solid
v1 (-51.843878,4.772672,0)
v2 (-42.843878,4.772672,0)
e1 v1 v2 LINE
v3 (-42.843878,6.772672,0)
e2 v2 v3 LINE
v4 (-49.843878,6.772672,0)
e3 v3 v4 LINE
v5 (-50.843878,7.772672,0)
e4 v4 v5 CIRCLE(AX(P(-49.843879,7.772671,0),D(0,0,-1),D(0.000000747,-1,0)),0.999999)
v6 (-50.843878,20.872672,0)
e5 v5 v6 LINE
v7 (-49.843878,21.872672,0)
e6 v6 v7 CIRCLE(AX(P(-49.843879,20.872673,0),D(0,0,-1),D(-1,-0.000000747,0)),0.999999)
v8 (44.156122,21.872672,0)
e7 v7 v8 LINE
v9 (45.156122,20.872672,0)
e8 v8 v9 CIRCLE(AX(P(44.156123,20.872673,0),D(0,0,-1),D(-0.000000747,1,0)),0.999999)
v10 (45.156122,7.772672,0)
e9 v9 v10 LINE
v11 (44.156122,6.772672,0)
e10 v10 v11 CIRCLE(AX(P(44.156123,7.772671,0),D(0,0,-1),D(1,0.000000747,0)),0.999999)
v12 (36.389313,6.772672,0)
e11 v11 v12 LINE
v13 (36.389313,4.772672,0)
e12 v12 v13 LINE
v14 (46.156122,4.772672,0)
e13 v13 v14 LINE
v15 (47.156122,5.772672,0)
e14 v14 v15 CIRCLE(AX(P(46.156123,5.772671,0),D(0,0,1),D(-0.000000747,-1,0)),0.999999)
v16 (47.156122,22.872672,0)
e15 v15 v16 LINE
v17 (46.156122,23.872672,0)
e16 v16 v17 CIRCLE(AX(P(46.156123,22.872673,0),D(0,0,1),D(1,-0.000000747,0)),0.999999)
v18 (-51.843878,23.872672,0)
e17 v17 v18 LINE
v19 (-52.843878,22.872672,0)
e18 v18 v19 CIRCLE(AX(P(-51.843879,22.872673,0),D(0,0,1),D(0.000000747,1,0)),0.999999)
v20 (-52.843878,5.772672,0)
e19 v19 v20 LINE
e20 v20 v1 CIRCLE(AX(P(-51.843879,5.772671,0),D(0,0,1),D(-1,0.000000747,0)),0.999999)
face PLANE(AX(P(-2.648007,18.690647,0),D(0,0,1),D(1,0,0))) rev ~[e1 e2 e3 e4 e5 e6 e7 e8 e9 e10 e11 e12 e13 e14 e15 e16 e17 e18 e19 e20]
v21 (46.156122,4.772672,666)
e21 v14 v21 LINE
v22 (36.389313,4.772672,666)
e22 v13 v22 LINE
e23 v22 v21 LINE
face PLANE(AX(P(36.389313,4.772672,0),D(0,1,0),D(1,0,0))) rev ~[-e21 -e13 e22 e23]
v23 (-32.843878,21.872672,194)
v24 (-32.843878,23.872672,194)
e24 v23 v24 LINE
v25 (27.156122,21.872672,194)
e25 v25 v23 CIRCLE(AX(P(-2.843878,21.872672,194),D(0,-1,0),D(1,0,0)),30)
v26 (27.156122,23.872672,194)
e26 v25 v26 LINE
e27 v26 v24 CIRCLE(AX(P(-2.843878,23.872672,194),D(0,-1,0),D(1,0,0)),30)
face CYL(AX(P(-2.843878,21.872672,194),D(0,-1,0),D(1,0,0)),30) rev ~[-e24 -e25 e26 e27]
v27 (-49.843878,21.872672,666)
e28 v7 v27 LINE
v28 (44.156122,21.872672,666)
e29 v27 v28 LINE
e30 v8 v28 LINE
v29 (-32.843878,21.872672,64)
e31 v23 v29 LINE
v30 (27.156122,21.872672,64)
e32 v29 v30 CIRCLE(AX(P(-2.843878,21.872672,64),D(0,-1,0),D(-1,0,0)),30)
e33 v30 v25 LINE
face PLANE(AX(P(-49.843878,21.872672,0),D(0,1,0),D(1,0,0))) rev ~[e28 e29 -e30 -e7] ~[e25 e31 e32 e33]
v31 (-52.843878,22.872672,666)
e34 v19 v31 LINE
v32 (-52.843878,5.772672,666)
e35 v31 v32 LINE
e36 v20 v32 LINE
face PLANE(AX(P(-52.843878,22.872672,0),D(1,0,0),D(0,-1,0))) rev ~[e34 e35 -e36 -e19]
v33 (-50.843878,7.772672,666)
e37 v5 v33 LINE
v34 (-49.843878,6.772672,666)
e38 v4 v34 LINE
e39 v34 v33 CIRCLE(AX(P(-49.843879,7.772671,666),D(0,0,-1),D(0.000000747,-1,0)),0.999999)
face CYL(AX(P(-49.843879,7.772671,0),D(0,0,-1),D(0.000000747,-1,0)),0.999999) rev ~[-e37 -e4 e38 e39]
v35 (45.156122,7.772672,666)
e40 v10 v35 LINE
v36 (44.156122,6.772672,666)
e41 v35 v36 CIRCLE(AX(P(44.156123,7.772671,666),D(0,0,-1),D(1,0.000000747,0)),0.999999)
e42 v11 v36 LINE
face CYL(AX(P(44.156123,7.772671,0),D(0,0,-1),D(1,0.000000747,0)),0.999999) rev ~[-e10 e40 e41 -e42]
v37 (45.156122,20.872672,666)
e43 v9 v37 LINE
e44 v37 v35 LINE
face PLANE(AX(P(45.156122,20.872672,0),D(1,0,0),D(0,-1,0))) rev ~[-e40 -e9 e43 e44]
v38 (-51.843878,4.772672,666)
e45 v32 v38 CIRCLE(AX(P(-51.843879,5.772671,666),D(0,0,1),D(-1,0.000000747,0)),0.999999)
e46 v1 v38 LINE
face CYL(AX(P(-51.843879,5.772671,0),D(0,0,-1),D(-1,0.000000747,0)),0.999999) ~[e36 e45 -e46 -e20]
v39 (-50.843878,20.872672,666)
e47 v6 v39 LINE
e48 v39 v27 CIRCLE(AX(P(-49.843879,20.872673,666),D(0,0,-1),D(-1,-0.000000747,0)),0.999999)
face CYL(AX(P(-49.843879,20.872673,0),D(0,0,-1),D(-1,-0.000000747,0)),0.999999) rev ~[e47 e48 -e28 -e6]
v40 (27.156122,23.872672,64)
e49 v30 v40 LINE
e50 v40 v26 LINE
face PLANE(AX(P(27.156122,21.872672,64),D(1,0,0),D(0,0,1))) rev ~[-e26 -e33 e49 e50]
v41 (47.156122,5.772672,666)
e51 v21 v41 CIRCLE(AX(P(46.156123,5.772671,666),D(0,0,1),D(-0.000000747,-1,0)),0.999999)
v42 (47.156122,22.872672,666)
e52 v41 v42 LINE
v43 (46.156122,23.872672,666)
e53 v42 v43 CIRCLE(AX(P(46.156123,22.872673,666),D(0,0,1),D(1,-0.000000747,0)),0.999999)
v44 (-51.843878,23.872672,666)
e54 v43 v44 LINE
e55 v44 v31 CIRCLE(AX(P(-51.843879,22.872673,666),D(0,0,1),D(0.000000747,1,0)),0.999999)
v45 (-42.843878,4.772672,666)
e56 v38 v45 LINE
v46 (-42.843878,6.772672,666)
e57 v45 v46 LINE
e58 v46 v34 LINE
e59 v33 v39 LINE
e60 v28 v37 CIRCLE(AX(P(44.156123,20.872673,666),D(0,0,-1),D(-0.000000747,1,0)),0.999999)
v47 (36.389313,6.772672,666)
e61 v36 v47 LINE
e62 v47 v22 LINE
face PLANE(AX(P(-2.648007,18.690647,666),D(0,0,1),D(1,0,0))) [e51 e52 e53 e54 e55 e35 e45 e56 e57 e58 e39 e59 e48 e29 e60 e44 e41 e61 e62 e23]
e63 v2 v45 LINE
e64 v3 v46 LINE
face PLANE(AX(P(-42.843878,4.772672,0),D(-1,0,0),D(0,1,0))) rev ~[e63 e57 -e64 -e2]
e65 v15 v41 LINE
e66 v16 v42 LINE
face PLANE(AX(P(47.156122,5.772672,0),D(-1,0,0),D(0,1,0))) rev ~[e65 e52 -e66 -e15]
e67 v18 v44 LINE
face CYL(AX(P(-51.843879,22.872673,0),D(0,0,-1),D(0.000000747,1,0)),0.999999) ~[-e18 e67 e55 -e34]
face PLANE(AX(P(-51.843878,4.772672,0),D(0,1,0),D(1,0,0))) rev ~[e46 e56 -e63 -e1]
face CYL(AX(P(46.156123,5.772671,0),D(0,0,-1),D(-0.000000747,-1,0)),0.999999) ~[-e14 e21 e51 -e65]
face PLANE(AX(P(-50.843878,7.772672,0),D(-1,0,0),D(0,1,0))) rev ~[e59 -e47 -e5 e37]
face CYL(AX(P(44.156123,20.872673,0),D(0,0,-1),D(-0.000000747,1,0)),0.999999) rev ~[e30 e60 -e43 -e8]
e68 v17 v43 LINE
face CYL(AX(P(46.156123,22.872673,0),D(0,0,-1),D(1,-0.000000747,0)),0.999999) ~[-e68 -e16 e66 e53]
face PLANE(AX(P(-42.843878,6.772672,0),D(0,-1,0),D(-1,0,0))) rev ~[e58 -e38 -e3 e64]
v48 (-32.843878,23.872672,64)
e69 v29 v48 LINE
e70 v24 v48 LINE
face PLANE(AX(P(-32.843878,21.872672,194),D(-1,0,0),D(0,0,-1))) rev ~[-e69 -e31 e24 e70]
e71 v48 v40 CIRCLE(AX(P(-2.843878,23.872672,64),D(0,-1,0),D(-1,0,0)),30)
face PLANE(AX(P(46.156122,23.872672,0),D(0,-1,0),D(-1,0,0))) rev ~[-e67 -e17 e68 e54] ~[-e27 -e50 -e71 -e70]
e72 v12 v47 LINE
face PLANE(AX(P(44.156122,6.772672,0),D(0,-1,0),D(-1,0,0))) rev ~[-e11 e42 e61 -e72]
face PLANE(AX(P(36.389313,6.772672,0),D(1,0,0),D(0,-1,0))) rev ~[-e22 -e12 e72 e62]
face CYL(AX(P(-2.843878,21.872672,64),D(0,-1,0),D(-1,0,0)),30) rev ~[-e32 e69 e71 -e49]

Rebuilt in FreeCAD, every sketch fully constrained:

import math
import FreeCAD as App
import Part
import Sketcher
Q = App.Units.Quantity

doc = App.newDocument("Part")
params = doc.addObject("Spreadsheet::Sheet", "Params")
for row, (alias, value) in enumerate([
    ("sketch1_radius", "0.999999 mm"),
    ("sketch1_width", "98 mm"),
    ("sketch1_width2", "9 mm"),
    ("sketch1_width3", "7 mm"),
    ("sketch1_width4", "94 mm"),
    ("pad1_length", "666 mm"),
    ("sketch2_radius", "30 mm"),
    ("sketch2_height", "130 mm"),
], start=1):
    params.set(f"A{row}", alias)
    params.set(f"B{row}", "=" + value)
    params.setAlias(f"B{row}", alias)

body = doc.addObject("PartDesign::Body", "Body")

sketch1 = doc.addObject("Sketcher::SketchObject", "Sketch")
body.addObject(sketch1)
sketch1.AttachmentSupport = (doc.XY_Plane, [""])
sketch1.MapMode = "FlatFace"
sketch1.addGeometry([
    Part.LineSegment(App.Vector(46.2, 23.9, 0), App.Vector(-51.8, 23.9, 0)),
    Part.ArcOfCircle(Part.Circle(App.Vector(-51.8, 22.9, 0), App.Vector(0, 0, 1), 1), math.radians(90), math.radians(180)),
    Part.LineSegment(App.Vector(-52.8, 22.9, 0), App.Vector(-52.8, 5.8, 0)),
    Part.ArcOfCircle(Part.Circle(App.Vector(-51.8, 5.8, 0), App.Vector(0, 0, 1), 1), math.radians(180), math.radians(270)),
    Part.LineSegment(App.Vector(-51.8, 4.8, 0), App.Vector(-42.8, 4.8, 0)),
    Part.LineSegment(App.Vector(-42.8, 4.8, 0), App.Vector(-42.8, 6.8, 0)),
    Part.LineSegment(App.Vector(-42.8, 6.8, 0), App.Vector(-49.8, 6.8, 0)),
    Part.ArcOfCircle(Part.Circle(App.Vector(-49.8, 7.8, 0), App.Vector(0, 0, 1), 1), math.radians(180), math.radians(270)),
    Part.LineSegment(App.Vector(-50.8, 7.8, 0), App.Vector(-50.8, 20.9, 0)),
    Part.ArcOfCircle(Part.Circle(App.Vector(-49.8, 20.9, 0), App.Vector(0, 0, 1), 1), math.radians(90), math.radians(180)),
    Part.LineSegment(App.Vector(-49.8, 21.9, 0), App.Vector(44.2, 21.9, 0)),
    Part.ArcOfCircle(Part.Circle(App.Vector(44.2, 20.9, 0), App.Vector(0, 0, 1), 1), math.radians(0), math.radians(90)),
    Part.LineSegment(App.Vector(45.2, 20.9, 0), App.Vector(45.2, 7.8, 0)),
    Part.ArcOfCircle(Part.Circle(App.Vector(44.2, 7.8, 0), App.Vector(0, 0, 1), 1), math.radians(-90), math.radians(0)),
    Part.LineSegment(App.Vector(44.2, 6.8, 0), App.Vector(36.4, 6.8, 0)),
    Part.LineSegment(App.Vector(36.4, 6.8, 0), App.Vector(36.4, 4.8, 0)),
    Part.LineSegment(App.Vector(36.4, 4.8, 0), App.Vector(46.2, 4.8, 0)),
    Part.ArcOfCircle(Part.Circle(App.Vector(46.2, 5.8, 0), App.Vector(0, 0, 1), 1), math.radians(-90), math.radians(0)),
    Part.LineSegment(App.Vector(47.2, 5.8, 0), App.Vector(47.2, 22.9, 0)),
    Part.ArcOfCircle(Part.Circle(App.Vector(46.2, 22.9, 0), App.Vector(0, 0, 1), 1), math.radians(0), math.radians(90)),
], False)
sketch1.addConstraint([
    Sketcher.Constraint("Tangent", 0, 2, 1, 1),
    Sketcher.Constraint("Tangent", 1, 2, 2, 1),
    Sketcher.Constraint("Tangent", 2, 2, 3, 1),
    Sketcher.Constraint("Tangent", 3, 2, 4, 1),
    Sketcher.Constraint("Coincident", 4, 2, 5, 1),
    Sketcher.Constraint("Coincident", 5, 2, 6, 1),
    Sketcher.Constraint("Tangent", 6, 2, 7, 2),
    Sketcher.Constraint("Tangent", 7, 1, 8, 1),
    Sketcher.Constraint("Tangent", 8, 2, 9, 2),
    Sketcher.Constraint("Tangent", 9, 1, 10, 1),
    Sketcher.Constraint("Tangent", 10, 2, 11, 2),
    Sketcher.Constraint("Tangent", 11, 1, 12, 1),
    Sketcher.Constraint("Tangent", 12, 2, 13, 2),
    Sketcher.Constraint("Tangent", 13, 1, 14, 1),
    Sketcher.Constraint("Coincident", 14, 2, 15, 1),
    Sketcher.Constraint("Coincident", 15, 2, 16, 1),
    Sketcher.Constraint("Tangent", 16, 2, 17, 1),
    Sketcher.Constraint("Tangent", 17, 2, 18, 1),
    Sketcher.Constraint("Tangent", 18, 2, 19, 1),
    Sketcher.Constraint("Tangent", 19, 2, 0, 1),
    Sketcher.Constraint("Horizontal", 0),
    Sketcher.Constraint("Vertical", 2),
    Sketcher.Constraint("Horizontal", 4),
    Sketcher.Constraint("Vertical", 5),
    Sketcher.Constraint("Horizontal", 6),
    Sketcher.Constraint("Vertical", 8),
    Sketcher.Constraint("Horizontal", 10),
    Sketcher.Constraint("Vertical", 12),
    Sketcher.Constraint("Horizontal", 14),
    Sketcher.Constraint("Vertical", 15),
    Sketcher.Constraint("Horizontal", 16),
    Sketcher.Constraint("Vertical", 18),
    Sketcher.Constraint("Equal", 1, 3),
    Sketcher.Constraint("Equal", 3, 7),
    Sketcher.Constraint("Equal", 7, 9),
    Sketcher.Constraint("Equal", 9, 11),
    Sketcher.Constraint("Equal", 11, 13),
    Sketcher.Constraint("Equal", 13, 17),
    Sketcher.Constraint("Equal", 17, 19),
    Sketcher.Constraint("Horizontal", 7, 3, 13, 3),
    Sketcher.Constraint("Horizontal", 3, 3, 17, 3),
    Sketcher.Constraint("Radius", 1, Q("0.999999 mm")),
    Sketcher.Constraint("DistanceX", 0, 2, 0, 1, Q("98 mm")),
    Sketcher.Constraint("DistanceX", 4, 1, 4, 2, Q("9 mm")),
    Sketcher.Constraint("DistanceX", 6, 2, 6, 1, Q("7 mm")),
    Sketcher.Constraint("DistanceX", 10, 1, 10, 2, Q("94 mm")),
    Sketcher.Constraint("DistanceY", 5, 1, 5, 2, Q("2 mm")),
    Sketcher.Constraint("DistanceY", 2, 2, 2, 1, Q("17.1 mm")),
    Sketcher.Constraint("DistanceY", 8, 1, 8, 2, Q("13.1 mm")),
    Sketcher.Constraint("DistanceX", 14, 2, 14, 1, Q("7.766809 mm")),
    Sketcher.Constraint("DistanceX", 1, 3, -1, 1, Q("51.843879 mm")),
    Sketcher.Constraint("DistanceY", -1, 1, 3, 3, Q("5.772671 mm")),
])
sketch1.setExpression("Constraints[41]", "Params.sketch1_radius")
sketch1.setExpression("Constraints[42]", "Params.sketch1_width")
sketch1.setExpression("Constraints[43]", "Params.sketch1_width2")
sketch1.setExpression("Constraints[44]", "Params.sketch1_width3")
sketch1.setExpression("Constraints[45]", "Params.sketch1_width4")
pad1 = doc.addObject("PartDesign::Pad", "Pad")
body.addObject(pad1)
pad1.Profile = sketch1
pad1.setExpression("Length", "Params.pad1_length")

sketch2 = doc.addObject("Sketcher::SketchObject", "Sketch001")
body.addObject(sketch2)
sketch2.AttachmentSupport = (doc.XZ_Plane, [""])
sketch2.MapMode = "FlatFace"
sketch2.AttachmentOffset = App.Placement(App.Vector(0, 0, -21.872672), App.Rotation())
sketch2.addGeometry([
    Part.ArcOfCircle(Part.Circle(App.Vector(-3, 64, 0), App.Vector(0, 0, 1), 30), math.radians(180), math.radians(360)),
    Part.LineSegment(App.Vector(27, 64, 0), App.Vector(27, 194, 0)),
    Part.ArcOfCircle(Part.Circle(App.Vector(-3, 194, 0), App.Vector(0, 0, 1), 30), math.radians(0), math.radians(180)),
    Part.LineSegment(App.Vector(-33, 194, 0), App.Vector(-33, 64, 0)),
], False)
sketch2.addConstraint([
    Sketcher.Constraint("Tangent", 0, 2, 1, 1),
    Sketcher.Constraint("Tangent", 1, 2, 2, 1),
    Sketcher.Constraint("Tangent", 2, 2, 3, 1),
    Sketcher.Constraint("Tangent", 3, 2, 0, 1),
    Sketcher.Constraint("Vertical", 1),
    Sketcher.Constraint("Vertical", 3),
    Sketcher.Constraint("Radius", 0, Q("30 mm")),
    Sketcher.Constraint("DistanceY", 1, 1, 1, 2, Q("130 mm")),
    Sketcher.Constraint("DistanceY", -1, 1, 0, 3, Q("64 mm")),
    Sketcher.Constraint("DistanceX", 0, 3, -1, 1, Q("2.843878 mm")),
])
sketch2.setExpression("Constraints[6]", "Params.sketch2_radius")
sketch2.setExpression("Constraints[7]", "Params.sketch2_height")
pocket1 = doc.addObject("PartDesign::Pocket", "Pocket")
body.addObject(pocket1)
pocket1.Profile = sketch2
pocket1.Type = "ThroughAll"

doc.recompute()
